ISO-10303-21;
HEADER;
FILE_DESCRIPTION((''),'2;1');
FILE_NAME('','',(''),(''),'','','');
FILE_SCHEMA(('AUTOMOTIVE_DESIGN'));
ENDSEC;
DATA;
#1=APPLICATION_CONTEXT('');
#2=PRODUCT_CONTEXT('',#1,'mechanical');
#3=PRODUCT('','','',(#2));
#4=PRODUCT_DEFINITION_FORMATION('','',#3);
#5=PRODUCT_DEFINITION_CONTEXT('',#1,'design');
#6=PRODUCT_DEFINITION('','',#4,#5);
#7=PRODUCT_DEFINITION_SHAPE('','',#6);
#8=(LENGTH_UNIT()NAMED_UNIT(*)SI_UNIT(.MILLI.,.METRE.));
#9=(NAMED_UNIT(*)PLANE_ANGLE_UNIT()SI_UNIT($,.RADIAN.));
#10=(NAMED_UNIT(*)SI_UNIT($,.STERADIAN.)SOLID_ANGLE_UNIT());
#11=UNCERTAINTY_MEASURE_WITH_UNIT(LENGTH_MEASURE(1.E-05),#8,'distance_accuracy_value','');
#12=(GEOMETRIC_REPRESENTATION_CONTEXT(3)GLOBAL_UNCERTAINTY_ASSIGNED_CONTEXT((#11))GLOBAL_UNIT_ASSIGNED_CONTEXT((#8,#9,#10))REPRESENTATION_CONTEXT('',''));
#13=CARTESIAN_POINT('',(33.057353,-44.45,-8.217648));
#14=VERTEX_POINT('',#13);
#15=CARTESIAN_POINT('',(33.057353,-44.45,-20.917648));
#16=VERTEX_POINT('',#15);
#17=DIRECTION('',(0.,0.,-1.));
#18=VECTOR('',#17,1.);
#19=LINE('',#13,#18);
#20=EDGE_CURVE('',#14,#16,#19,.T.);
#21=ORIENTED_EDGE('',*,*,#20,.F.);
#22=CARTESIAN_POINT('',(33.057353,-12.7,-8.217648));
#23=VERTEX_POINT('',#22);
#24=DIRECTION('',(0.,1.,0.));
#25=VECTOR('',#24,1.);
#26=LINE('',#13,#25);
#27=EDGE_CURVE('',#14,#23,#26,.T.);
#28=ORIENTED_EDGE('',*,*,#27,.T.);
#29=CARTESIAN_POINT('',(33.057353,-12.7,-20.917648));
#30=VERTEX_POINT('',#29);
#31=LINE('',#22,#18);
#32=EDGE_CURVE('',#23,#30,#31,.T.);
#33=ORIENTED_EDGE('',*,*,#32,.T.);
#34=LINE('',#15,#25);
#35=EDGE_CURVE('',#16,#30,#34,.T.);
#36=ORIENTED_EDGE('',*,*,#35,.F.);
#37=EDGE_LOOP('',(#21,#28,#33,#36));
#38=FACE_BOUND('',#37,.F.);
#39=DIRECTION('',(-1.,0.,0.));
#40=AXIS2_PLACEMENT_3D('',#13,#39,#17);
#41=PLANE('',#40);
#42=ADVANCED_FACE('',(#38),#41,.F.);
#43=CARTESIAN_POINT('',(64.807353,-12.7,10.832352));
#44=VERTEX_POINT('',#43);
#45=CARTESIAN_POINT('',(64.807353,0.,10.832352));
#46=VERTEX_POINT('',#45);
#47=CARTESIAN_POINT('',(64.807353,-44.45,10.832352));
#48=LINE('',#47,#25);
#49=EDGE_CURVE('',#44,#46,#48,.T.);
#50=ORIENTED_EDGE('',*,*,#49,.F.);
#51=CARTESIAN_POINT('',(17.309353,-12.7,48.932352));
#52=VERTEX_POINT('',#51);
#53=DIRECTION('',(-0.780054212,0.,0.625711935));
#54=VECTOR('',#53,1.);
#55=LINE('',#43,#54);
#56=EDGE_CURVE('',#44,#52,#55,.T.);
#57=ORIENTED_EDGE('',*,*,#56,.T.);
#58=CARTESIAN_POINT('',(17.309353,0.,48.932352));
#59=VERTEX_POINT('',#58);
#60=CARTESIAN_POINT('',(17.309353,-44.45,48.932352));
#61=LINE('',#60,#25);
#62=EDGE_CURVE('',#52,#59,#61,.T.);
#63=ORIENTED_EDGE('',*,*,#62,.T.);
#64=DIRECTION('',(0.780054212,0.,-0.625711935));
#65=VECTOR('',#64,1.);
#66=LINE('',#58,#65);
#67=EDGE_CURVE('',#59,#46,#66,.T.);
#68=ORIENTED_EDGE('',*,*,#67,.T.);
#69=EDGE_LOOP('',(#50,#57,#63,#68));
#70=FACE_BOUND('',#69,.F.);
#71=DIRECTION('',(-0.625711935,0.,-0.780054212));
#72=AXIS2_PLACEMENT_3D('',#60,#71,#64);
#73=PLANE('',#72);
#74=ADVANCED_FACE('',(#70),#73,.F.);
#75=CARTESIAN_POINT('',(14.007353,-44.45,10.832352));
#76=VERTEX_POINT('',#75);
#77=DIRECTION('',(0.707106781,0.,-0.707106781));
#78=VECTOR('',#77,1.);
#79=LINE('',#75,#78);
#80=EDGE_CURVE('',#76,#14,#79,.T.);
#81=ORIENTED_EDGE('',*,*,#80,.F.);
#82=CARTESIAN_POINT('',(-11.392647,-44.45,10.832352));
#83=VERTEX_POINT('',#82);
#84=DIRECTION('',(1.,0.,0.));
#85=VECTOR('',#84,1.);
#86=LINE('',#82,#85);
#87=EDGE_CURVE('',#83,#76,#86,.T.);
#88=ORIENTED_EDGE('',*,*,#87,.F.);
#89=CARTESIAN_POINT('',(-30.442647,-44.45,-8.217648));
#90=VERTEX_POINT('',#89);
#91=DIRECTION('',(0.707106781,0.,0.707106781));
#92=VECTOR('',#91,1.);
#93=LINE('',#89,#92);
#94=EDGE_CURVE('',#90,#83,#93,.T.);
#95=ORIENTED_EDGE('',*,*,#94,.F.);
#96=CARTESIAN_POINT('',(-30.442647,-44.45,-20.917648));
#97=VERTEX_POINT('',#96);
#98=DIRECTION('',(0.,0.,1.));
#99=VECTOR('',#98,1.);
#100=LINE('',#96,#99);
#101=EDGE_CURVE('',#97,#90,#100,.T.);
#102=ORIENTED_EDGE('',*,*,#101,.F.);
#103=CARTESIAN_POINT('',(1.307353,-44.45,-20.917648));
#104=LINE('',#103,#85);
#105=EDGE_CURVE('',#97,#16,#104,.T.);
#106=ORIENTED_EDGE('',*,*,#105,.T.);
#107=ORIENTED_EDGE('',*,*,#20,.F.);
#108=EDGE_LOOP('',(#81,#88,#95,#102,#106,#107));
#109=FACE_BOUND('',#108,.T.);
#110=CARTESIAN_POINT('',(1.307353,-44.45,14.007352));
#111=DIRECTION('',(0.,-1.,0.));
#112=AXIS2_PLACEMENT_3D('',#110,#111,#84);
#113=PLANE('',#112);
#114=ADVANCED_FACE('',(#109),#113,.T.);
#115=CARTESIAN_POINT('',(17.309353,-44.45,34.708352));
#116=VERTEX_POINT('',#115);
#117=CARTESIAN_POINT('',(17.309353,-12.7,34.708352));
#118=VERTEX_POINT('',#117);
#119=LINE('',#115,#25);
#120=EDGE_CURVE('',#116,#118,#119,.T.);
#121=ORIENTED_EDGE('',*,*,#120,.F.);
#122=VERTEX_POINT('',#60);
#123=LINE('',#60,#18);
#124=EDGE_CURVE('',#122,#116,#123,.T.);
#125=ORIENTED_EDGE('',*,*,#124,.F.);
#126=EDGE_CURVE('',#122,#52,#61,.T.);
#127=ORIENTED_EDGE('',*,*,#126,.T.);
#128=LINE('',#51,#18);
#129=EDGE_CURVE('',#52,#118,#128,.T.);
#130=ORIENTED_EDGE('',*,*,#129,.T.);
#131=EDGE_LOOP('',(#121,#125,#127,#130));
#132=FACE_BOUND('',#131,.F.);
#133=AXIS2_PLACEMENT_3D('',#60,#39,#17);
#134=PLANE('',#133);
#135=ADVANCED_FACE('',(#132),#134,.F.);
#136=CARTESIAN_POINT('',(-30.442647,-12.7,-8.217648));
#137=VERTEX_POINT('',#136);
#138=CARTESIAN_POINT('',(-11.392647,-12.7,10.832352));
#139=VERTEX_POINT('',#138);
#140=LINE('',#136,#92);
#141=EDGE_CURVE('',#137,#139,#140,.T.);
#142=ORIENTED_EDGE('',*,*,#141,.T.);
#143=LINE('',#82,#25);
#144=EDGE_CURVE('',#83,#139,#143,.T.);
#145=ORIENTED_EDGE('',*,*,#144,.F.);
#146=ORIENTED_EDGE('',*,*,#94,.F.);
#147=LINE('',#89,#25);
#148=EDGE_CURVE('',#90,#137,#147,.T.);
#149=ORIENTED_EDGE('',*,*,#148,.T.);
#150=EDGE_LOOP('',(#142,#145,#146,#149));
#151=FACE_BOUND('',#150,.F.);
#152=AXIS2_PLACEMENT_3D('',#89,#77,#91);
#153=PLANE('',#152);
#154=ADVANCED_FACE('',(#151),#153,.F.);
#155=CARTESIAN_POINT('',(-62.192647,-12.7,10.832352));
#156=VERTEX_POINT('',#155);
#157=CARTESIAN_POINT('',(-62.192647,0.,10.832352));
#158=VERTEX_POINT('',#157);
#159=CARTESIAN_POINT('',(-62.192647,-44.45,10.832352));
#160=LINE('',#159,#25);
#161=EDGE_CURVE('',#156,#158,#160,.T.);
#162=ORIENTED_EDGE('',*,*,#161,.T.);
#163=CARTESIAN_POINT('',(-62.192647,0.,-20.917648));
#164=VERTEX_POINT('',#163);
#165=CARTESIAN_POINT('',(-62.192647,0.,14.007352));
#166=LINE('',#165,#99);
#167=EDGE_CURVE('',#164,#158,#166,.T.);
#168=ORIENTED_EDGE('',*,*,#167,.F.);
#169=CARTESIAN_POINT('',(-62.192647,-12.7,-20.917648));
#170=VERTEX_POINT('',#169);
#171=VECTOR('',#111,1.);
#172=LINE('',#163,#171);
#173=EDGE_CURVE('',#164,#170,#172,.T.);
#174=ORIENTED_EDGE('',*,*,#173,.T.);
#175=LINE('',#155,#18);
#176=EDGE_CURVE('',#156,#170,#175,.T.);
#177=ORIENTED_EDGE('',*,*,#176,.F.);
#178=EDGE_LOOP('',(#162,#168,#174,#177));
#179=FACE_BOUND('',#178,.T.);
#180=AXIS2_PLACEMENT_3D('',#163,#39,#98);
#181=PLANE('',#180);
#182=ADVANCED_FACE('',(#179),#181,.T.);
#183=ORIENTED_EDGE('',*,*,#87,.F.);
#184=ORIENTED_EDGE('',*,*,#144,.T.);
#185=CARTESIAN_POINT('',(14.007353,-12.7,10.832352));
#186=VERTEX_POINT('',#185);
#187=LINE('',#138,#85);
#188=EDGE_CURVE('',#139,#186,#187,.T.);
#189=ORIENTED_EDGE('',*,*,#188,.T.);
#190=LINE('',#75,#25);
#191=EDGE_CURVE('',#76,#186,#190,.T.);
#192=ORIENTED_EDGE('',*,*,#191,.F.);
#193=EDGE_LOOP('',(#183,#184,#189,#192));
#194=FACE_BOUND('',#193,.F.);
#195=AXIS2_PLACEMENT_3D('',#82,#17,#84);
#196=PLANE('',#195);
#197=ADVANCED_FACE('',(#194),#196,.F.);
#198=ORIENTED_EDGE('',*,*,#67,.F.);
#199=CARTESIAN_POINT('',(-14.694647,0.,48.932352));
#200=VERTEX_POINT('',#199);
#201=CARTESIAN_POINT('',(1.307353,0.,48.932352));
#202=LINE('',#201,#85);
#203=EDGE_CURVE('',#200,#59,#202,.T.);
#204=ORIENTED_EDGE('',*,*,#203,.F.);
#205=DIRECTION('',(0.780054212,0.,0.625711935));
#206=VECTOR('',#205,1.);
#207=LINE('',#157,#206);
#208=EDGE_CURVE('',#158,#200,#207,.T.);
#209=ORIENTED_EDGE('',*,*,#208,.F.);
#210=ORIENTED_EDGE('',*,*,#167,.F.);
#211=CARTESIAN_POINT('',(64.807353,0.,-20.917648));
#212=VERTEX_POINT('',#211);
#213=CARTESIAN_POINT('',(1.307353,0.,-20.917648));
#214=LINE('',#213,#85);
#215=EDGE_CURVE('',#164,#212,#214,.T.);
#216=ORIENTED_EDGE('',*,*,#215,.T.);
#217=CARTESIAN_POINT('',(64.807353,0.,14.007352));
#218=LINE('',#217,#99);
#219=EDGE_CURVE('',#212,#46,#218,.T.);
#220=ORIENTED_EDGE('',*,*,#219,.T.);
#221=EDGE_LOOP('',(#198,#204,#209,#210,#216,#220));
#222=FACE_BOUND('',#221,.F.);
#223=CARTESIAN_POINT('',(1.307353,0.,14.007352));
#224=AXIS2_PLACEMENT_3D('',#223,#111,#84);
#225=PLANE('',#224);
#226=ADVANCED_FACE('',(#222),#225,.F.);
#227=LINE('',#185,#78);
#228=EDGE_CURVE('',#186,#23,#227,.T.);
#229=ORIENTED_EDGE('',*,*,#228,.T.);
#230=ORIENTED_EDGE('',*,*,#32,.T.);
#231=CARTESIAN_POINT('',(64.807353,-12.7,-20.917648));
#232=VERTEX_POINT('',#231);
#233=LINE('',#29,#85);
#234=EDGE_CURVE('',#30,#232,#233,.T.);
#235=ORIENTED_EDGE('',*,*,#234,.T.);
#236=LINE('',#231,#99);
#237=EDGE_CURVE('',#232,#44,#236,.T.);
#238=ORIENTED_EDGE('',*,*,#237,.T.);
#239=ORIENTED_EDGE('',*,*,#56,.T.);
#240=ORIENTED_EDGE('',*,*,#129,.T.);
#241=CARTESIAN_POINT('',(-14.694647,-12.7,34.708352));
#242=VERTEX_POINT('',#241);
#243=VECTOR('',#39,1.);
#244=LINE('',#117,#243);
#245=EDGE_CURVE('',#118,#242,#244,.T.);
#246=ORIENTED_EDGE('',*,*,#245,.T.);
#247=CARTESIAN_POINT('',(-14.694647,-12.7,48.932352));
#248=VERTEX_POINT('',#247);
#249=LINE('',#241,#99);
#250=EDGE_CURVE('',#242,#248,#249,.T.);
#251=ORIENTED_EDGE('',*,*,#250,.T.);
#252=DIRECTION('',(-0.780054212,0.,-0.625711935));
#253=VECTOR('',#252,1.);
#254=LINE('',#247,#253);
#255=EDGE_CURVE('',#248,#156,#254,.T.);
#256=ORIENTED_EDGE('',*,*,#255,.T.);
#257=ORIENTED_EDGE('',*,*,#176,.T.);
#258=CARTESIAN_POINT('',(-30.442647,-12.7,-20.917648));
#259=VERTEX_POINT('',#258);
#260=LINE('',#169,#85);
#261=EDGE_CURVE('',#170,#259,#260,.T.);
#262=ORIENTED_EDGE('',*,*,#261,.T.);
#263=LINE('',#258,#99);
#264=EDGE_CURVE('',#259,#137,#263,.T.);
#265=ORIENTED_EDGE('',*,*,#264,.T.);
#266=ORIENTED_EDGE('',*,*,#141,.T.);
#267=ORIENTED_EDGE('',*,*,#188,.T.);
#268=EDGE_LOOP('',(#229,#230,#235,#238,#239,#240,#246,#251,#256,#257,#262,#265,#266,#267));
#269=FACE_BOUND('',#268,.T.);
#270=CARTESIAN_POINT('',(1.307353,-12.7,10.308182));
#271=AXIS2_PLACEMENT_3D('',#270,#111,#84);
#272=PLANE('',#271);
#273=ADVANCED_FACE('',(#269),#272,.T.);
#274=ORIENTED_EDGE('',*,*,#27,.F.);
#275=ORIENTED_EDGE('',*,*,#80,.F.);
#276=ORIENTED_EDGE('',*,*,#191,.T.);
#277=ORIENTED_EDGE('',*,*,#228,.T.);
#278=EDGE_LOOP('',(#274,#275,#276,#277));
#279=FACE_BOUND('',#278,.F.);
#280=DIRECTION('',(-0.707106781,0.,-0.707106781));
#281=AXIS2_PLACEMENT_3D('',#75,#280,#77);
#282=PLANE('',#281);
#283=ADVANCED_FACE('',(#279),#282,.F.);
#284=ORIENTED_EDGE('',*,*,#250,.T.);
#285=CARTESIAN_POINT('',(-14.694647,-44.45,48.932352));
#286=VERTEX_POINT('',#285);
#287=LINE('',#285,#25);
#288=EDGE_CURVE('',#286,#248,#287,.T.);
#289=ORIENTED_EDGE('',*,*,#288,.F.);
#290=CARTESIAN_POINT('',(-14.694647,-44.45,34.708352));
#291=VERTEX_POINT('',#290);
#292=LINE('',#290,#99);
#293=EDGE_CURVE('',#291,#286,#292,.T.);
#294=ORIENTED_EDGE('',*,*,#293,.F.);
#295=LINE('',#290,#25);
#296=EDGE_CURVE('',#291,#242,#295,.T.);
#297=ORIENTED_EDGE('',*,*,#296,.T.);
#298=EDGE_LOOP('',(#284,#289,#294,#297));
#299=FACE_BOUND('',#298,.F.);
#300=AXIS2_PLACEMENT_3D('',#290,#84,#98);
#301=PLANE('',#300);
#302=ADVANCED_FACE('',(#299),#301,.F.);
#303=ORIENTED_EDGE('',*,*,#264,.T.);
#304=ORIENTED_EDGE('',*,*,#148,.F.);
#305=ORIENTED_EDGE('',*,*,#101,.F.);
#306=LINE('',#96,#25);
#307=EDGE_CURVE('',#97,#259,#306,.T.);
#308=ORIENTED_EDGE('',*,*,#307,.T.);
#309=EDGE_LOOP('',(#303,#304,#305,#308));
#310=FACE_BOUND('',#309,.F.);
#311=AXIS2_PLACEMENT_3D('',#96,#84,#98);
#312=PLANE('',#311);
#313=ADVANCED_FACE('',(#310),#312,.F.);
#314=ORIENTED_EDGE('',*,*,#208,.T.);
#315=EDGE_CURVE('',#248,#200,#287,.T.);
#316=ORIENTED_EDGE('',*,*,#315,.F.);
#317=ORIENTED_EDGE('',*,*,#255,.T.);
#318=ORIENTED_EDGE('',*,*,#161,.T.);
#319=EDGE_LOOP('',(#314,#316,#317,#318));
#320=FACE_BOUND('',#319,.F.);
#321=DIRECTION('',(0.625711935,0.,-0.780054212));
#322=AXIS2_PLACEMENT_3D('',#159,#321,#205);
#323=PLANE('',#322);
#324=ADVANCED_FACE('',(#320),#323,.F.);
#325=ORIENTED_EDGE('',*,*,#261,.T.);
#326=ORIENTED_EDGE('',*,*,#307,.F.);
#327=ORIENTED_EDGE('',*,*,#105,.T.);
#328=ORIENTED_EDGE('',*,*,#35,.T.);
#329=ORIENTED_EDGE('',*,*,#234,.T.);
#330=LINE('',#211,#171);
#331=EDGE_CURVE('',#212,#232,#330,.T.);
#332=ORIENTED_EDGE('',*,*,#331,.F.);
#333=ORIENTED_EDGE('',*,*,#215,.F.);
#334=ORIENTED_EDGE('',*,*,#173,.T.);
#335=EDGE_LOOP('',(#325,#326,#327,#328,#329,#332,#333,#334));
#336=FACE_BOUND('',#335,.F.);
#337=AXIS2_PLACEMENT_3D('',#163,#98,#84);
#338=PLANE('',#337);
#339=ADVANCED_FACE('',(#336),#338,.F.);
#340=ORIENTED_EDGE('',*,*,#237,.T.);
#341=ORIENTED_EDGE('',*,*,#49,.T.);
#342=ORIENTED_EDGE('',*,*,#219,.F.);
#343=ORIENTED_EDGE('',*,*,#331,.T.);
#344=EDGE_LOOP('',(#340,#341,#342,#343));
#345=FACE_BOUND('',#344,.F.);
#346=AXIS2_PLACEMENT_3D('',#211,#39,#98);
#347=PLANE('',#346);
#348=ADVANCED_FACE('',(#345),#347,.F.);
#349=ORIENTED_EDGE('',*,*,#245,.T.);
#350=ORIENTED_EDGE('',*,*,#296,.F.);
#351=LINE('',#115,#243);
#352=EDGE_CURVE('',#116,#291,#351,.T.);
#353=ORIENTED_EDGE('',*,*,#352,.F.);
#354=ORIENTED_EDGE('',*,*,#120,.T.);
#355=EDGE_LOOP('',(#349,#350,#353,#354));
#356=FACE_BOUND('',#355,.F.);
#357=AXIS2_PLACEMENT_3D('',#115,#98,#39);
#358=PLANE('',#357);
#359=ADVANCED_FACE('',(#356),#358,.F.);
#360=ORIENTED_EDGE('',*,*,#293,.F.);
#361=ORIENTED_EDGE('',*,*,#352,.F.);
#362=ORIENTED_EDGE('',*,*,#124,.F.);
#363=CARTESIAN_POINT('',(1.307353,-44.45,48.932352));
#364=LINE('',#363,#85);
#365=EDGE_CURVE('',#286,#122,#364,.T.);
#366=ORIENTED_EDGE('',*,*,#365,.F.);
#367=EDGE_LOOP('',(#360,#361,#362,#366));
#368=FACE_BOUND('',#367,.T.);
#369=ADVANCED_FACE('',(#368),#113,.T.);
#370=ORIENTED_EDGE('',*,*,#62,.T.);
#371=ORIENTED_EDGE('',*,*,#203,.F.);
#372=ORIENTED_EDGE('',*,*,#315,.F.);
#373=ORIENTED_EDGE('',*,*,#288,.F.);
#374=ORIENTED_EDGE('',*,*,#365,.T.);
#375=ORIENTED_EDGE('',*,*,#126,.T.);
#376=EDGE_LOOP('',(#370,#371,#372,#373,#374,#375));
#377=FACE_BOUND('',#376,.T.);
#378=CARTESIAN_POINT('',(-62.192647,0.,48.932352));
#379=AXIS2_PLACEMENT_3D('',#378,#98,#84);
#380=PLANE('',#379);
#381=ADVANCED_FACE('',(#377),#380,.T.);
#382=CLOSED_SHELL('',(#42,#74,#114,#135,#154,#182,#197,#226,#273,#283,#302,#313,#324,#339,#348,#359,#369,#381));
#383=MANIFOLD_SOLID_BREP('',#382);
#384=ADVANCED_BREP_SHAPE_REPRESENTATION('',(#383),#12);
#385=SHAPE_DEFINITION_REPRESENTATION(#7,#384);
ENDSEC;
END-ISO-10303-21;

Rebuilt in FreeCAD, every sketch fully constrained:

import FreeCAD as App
import Part
import Sketcher
from FreeCAD import Vector
Q = App.Units.Quantity


def add_polygon(sketch, points):
    """Adds a closed chain of lines whose ends are joined by coincident constraints."""
    first, n = sketch.GeometryCount, len(points)
    for a, b in zip(points, points[1:] + points[:1]):
        sketch.addGeometry(Part.LineSegment(App.Vector(*a, 0), App.Vector(*b, 0)), False)
    for i in range(n):
        sketch.addConstraint(Sketcher.Constraint("Coincident", first + i, 2, first + (i + 1) % n, 1))

doc = App.newDocument("Part")
body = doc.addObject("PartDesign::Body", "Body")

sketch1 = doc.addObject("Sketcher::SketchObject", "Sketch")
body.addObject(sketch1)
sketch1.AttachmentSupport = (doc.XZ_Plane, [""])
sketch1.MapMode = "FlatFace"
add_polygon(sketch1, [(-62, 49), (-62, -21), (65, -21), (65, 49)])
sketch1.addConstraint(Sketcher.Constraint("Vertical", 0))
sketch1.addConstraint(Sketcher.Constraint("Horizontal", 1))
sketch1.addConstraint(Sketcher.Constraint("Vertical", 2))
sketch1.addConstraint(Sketcher.Constraint("Horizontal", 3))
sketch1.addConstraint(Sketcher.Constraint("DistanceX", 1, 1, 1, 2, Q("5 in")))
sketch1.addConstraint(Sketcher.Constraint("DistanceY", 0, 2, 0, 1, Q("2.75 in")))
sketch1.addConstraint(Sketcher.Constraint("DistanceY", 0, 2, -1, 1, Q("20.917648 mm")))
sketch1.addConstraint(Sketcher.Constraint("DistanceX", 0, 2, -1, 1, Q("62.192647 mm")))
pad1 = doc.addObject("PartDesign::Pad", "Pad")
body.addObject(pad1)
pad1.Profile = sketch1
pad1.Length = Q("1.75 in")

sketch2 = doc.addObject("Sketcher::SketchObject", "Sketch001")
body.addObject(sketch2)
sketch2.AttachmentSupport = (doc.XZ_Plane, [""])
sketch2.MapMode = "FlatFace"
sketch2.AttachmentOffset = App.Placement(Vector(0, 0, 1.75 * 25.4), App.Rotation())
add_polygon(sketch2, [(17, 49), (65, 11), (65, 49)])
add_polygon(sketch2, [(-62, 49), (-62, 11), (-15, 49)])
sketch2.addConstraint(Sketcher.Constraint("Vertical", 1))
sketch2.addConstraint(Sketcher.Constraint("Horizontal", 2))
sketch2.addConstraint(Sketcher.Constraint("Vertical", 3))
sketch2.addConstraint(Sketcher.Constraint("Horizontal", 5))
sketch2.addConstraint(Sketcher.Constraint("Horizontal", 0, 2, 3, 2))
sketch2.addConstraint(Sketcher.Constraint("Horizontal", 2, 2, 4, 2))
sketch2.addConstraint(Sketcher.Constraint("Equal", 2, 5))
sketch2.addConstraint(Sketcher.Constraint("DistanceY", 1, 1, 1, 2, Q("1.5 in")))
sketch2.addConstraint(Sketcher.Constraint("DistanceX", 3, 2, 0, 2, Q("5 in")))
sketch2.addConstraint(Sketcher.Constraint("DistanceX", 2, 2, 2, 1, Q("1.87 in")))
sketch2.addConstraint(Sketcher.Constraint("DistanceX", -1, 1, 0, 2, Q("64.807353 mm")))
sketch2.addConstraint(Sketcher.Constraint("DistanceY", -1, 1, 0, 2, Q("10.832352 mm")))
pocket1 = doc.addObject("PartDesign::Pocket", "Pocket")
body.addObject(pocket1)
pocket1.Profile = sketch2
pocket1.Length = Q("1.75 in")

sketch3 = doc.addObject("Sketcher::SketchObject", "Sketch002")
body.addObject(sketch3)
sketch3.AttachmentSupport = (doc.XZ_Plane, [""])
sketch3.MapMode = "FlatFace"
sketch3.AttachmentOffset = App.Placement(Vector(0, 0, 1.75 * 25.4), App.Rotation())
add_polygon(sketch3, [(65, 11), (17, 49), (17, 35), (-15, 35), (-15, 49), (-62, 11), (-62, -21), (-30, -21), (-30, -8), (-11, 11), (14, 11), (33, -8), (33, -21), (65, -21)])
sketch3.addConstraint(Sketcher.Constraint("Vertical", 1))
sketch3.addConstraint(Sketcher.Constraint("Horizontal", 2))
sketch3.addConstraint(Sketcher.Constraint("Vertical", 3))
sketch3.addConstraint(Sketcher.Constraint("Vertical", 5))
sketch3.addConstraint(Sketcher.Constraint("Horizontal", 6))
sketch3.addConstraint(Sketcher.Constraint("Vertical", 7))
sketch3.addConstraint(Sketcher.Constraint("Horizontal", 9))
sketch3.addConstraint(Sketcher.Constraint("Vertical", 11))
sketch3.addConstraint(Sketcher.Constraint("Horizontal", 12))
sketch3.addConstraint(Sketcher.Constraint("Vertical", 13))
sketch3.addConstraint(Sketcher.Constraint("Perpendicular", 8, 10))
sketch3.addConstraint(Sketcher.Constraint("Horizontal", 0, 2, 3, 2))
sketch3.addConstraint(Sketcher.Constraint("Horizontal", 4, 2, 8, 2))
sketch3.addConstraint(Sketcher.Constraint("Horizontal", 7, 2, 10, 2))
sketch3.addConstraint(Sketcher.Constraint("Horizontal", 6, 2, 11, 2))
sketch3.addConstraint(Sketcher.Constraint("Horizontal", 9, 2, 13, 2))
sketch3.addConstraint(Sketcher.Constraint("Equal", 6, 12))
sketch3.addConstraint(Sketcher.Constraint("Equal", 12, 5))
sketch3.addConstraint(Sketcher.Constraint("Equal", 0, 4))
sketch3.addConstraint(Sketcher.Constraint("Equal", 8, 10))
sketch3.addConstraint(Sketcher.Constraint("DistanceX", 9, 1, 9, 2, Q("1 in")))
sketch3.addConstraint(Sketcher.Constraint("DistanceY", 7, 1, 7, 2, Q("0.5 in")))
sketch3.addConstraint(Sketcher.Constraint("DistanceX", 9, 2, 12, 2, Q("2 in")))
sketch3.addConstraint(Sketcher.Constraint("DistanceX", 2, 2, 2, 1, Q("1.26 in")))
sketch3.addConstraint(Sketcher.Constraint("DistanceY", 1, 2, 1, 1, Q("0.56 in")))
sketch3.addConstraint(Sketcher.Constraint("DistanceY", 4, 2, 3, 2, Q("1.5 in")))
sketch3.addConstraint(Sketcher.Constraint("DistanceY", -1, 1, 1, 2, Q("34.708352 mm")))
sketch3.addConstraint(Sketcher.Constraint("DistanceX", -1, 1, 0, 2, Q("17.309353 mm")))
pocket2 = doc.addObject("PartDesign::Pocket", "Pocket001")
body.addObject(pocket2)
pocket2.Profile = sketch3
pocket2.Length = Q("1.25 in")

doc.recompute()
